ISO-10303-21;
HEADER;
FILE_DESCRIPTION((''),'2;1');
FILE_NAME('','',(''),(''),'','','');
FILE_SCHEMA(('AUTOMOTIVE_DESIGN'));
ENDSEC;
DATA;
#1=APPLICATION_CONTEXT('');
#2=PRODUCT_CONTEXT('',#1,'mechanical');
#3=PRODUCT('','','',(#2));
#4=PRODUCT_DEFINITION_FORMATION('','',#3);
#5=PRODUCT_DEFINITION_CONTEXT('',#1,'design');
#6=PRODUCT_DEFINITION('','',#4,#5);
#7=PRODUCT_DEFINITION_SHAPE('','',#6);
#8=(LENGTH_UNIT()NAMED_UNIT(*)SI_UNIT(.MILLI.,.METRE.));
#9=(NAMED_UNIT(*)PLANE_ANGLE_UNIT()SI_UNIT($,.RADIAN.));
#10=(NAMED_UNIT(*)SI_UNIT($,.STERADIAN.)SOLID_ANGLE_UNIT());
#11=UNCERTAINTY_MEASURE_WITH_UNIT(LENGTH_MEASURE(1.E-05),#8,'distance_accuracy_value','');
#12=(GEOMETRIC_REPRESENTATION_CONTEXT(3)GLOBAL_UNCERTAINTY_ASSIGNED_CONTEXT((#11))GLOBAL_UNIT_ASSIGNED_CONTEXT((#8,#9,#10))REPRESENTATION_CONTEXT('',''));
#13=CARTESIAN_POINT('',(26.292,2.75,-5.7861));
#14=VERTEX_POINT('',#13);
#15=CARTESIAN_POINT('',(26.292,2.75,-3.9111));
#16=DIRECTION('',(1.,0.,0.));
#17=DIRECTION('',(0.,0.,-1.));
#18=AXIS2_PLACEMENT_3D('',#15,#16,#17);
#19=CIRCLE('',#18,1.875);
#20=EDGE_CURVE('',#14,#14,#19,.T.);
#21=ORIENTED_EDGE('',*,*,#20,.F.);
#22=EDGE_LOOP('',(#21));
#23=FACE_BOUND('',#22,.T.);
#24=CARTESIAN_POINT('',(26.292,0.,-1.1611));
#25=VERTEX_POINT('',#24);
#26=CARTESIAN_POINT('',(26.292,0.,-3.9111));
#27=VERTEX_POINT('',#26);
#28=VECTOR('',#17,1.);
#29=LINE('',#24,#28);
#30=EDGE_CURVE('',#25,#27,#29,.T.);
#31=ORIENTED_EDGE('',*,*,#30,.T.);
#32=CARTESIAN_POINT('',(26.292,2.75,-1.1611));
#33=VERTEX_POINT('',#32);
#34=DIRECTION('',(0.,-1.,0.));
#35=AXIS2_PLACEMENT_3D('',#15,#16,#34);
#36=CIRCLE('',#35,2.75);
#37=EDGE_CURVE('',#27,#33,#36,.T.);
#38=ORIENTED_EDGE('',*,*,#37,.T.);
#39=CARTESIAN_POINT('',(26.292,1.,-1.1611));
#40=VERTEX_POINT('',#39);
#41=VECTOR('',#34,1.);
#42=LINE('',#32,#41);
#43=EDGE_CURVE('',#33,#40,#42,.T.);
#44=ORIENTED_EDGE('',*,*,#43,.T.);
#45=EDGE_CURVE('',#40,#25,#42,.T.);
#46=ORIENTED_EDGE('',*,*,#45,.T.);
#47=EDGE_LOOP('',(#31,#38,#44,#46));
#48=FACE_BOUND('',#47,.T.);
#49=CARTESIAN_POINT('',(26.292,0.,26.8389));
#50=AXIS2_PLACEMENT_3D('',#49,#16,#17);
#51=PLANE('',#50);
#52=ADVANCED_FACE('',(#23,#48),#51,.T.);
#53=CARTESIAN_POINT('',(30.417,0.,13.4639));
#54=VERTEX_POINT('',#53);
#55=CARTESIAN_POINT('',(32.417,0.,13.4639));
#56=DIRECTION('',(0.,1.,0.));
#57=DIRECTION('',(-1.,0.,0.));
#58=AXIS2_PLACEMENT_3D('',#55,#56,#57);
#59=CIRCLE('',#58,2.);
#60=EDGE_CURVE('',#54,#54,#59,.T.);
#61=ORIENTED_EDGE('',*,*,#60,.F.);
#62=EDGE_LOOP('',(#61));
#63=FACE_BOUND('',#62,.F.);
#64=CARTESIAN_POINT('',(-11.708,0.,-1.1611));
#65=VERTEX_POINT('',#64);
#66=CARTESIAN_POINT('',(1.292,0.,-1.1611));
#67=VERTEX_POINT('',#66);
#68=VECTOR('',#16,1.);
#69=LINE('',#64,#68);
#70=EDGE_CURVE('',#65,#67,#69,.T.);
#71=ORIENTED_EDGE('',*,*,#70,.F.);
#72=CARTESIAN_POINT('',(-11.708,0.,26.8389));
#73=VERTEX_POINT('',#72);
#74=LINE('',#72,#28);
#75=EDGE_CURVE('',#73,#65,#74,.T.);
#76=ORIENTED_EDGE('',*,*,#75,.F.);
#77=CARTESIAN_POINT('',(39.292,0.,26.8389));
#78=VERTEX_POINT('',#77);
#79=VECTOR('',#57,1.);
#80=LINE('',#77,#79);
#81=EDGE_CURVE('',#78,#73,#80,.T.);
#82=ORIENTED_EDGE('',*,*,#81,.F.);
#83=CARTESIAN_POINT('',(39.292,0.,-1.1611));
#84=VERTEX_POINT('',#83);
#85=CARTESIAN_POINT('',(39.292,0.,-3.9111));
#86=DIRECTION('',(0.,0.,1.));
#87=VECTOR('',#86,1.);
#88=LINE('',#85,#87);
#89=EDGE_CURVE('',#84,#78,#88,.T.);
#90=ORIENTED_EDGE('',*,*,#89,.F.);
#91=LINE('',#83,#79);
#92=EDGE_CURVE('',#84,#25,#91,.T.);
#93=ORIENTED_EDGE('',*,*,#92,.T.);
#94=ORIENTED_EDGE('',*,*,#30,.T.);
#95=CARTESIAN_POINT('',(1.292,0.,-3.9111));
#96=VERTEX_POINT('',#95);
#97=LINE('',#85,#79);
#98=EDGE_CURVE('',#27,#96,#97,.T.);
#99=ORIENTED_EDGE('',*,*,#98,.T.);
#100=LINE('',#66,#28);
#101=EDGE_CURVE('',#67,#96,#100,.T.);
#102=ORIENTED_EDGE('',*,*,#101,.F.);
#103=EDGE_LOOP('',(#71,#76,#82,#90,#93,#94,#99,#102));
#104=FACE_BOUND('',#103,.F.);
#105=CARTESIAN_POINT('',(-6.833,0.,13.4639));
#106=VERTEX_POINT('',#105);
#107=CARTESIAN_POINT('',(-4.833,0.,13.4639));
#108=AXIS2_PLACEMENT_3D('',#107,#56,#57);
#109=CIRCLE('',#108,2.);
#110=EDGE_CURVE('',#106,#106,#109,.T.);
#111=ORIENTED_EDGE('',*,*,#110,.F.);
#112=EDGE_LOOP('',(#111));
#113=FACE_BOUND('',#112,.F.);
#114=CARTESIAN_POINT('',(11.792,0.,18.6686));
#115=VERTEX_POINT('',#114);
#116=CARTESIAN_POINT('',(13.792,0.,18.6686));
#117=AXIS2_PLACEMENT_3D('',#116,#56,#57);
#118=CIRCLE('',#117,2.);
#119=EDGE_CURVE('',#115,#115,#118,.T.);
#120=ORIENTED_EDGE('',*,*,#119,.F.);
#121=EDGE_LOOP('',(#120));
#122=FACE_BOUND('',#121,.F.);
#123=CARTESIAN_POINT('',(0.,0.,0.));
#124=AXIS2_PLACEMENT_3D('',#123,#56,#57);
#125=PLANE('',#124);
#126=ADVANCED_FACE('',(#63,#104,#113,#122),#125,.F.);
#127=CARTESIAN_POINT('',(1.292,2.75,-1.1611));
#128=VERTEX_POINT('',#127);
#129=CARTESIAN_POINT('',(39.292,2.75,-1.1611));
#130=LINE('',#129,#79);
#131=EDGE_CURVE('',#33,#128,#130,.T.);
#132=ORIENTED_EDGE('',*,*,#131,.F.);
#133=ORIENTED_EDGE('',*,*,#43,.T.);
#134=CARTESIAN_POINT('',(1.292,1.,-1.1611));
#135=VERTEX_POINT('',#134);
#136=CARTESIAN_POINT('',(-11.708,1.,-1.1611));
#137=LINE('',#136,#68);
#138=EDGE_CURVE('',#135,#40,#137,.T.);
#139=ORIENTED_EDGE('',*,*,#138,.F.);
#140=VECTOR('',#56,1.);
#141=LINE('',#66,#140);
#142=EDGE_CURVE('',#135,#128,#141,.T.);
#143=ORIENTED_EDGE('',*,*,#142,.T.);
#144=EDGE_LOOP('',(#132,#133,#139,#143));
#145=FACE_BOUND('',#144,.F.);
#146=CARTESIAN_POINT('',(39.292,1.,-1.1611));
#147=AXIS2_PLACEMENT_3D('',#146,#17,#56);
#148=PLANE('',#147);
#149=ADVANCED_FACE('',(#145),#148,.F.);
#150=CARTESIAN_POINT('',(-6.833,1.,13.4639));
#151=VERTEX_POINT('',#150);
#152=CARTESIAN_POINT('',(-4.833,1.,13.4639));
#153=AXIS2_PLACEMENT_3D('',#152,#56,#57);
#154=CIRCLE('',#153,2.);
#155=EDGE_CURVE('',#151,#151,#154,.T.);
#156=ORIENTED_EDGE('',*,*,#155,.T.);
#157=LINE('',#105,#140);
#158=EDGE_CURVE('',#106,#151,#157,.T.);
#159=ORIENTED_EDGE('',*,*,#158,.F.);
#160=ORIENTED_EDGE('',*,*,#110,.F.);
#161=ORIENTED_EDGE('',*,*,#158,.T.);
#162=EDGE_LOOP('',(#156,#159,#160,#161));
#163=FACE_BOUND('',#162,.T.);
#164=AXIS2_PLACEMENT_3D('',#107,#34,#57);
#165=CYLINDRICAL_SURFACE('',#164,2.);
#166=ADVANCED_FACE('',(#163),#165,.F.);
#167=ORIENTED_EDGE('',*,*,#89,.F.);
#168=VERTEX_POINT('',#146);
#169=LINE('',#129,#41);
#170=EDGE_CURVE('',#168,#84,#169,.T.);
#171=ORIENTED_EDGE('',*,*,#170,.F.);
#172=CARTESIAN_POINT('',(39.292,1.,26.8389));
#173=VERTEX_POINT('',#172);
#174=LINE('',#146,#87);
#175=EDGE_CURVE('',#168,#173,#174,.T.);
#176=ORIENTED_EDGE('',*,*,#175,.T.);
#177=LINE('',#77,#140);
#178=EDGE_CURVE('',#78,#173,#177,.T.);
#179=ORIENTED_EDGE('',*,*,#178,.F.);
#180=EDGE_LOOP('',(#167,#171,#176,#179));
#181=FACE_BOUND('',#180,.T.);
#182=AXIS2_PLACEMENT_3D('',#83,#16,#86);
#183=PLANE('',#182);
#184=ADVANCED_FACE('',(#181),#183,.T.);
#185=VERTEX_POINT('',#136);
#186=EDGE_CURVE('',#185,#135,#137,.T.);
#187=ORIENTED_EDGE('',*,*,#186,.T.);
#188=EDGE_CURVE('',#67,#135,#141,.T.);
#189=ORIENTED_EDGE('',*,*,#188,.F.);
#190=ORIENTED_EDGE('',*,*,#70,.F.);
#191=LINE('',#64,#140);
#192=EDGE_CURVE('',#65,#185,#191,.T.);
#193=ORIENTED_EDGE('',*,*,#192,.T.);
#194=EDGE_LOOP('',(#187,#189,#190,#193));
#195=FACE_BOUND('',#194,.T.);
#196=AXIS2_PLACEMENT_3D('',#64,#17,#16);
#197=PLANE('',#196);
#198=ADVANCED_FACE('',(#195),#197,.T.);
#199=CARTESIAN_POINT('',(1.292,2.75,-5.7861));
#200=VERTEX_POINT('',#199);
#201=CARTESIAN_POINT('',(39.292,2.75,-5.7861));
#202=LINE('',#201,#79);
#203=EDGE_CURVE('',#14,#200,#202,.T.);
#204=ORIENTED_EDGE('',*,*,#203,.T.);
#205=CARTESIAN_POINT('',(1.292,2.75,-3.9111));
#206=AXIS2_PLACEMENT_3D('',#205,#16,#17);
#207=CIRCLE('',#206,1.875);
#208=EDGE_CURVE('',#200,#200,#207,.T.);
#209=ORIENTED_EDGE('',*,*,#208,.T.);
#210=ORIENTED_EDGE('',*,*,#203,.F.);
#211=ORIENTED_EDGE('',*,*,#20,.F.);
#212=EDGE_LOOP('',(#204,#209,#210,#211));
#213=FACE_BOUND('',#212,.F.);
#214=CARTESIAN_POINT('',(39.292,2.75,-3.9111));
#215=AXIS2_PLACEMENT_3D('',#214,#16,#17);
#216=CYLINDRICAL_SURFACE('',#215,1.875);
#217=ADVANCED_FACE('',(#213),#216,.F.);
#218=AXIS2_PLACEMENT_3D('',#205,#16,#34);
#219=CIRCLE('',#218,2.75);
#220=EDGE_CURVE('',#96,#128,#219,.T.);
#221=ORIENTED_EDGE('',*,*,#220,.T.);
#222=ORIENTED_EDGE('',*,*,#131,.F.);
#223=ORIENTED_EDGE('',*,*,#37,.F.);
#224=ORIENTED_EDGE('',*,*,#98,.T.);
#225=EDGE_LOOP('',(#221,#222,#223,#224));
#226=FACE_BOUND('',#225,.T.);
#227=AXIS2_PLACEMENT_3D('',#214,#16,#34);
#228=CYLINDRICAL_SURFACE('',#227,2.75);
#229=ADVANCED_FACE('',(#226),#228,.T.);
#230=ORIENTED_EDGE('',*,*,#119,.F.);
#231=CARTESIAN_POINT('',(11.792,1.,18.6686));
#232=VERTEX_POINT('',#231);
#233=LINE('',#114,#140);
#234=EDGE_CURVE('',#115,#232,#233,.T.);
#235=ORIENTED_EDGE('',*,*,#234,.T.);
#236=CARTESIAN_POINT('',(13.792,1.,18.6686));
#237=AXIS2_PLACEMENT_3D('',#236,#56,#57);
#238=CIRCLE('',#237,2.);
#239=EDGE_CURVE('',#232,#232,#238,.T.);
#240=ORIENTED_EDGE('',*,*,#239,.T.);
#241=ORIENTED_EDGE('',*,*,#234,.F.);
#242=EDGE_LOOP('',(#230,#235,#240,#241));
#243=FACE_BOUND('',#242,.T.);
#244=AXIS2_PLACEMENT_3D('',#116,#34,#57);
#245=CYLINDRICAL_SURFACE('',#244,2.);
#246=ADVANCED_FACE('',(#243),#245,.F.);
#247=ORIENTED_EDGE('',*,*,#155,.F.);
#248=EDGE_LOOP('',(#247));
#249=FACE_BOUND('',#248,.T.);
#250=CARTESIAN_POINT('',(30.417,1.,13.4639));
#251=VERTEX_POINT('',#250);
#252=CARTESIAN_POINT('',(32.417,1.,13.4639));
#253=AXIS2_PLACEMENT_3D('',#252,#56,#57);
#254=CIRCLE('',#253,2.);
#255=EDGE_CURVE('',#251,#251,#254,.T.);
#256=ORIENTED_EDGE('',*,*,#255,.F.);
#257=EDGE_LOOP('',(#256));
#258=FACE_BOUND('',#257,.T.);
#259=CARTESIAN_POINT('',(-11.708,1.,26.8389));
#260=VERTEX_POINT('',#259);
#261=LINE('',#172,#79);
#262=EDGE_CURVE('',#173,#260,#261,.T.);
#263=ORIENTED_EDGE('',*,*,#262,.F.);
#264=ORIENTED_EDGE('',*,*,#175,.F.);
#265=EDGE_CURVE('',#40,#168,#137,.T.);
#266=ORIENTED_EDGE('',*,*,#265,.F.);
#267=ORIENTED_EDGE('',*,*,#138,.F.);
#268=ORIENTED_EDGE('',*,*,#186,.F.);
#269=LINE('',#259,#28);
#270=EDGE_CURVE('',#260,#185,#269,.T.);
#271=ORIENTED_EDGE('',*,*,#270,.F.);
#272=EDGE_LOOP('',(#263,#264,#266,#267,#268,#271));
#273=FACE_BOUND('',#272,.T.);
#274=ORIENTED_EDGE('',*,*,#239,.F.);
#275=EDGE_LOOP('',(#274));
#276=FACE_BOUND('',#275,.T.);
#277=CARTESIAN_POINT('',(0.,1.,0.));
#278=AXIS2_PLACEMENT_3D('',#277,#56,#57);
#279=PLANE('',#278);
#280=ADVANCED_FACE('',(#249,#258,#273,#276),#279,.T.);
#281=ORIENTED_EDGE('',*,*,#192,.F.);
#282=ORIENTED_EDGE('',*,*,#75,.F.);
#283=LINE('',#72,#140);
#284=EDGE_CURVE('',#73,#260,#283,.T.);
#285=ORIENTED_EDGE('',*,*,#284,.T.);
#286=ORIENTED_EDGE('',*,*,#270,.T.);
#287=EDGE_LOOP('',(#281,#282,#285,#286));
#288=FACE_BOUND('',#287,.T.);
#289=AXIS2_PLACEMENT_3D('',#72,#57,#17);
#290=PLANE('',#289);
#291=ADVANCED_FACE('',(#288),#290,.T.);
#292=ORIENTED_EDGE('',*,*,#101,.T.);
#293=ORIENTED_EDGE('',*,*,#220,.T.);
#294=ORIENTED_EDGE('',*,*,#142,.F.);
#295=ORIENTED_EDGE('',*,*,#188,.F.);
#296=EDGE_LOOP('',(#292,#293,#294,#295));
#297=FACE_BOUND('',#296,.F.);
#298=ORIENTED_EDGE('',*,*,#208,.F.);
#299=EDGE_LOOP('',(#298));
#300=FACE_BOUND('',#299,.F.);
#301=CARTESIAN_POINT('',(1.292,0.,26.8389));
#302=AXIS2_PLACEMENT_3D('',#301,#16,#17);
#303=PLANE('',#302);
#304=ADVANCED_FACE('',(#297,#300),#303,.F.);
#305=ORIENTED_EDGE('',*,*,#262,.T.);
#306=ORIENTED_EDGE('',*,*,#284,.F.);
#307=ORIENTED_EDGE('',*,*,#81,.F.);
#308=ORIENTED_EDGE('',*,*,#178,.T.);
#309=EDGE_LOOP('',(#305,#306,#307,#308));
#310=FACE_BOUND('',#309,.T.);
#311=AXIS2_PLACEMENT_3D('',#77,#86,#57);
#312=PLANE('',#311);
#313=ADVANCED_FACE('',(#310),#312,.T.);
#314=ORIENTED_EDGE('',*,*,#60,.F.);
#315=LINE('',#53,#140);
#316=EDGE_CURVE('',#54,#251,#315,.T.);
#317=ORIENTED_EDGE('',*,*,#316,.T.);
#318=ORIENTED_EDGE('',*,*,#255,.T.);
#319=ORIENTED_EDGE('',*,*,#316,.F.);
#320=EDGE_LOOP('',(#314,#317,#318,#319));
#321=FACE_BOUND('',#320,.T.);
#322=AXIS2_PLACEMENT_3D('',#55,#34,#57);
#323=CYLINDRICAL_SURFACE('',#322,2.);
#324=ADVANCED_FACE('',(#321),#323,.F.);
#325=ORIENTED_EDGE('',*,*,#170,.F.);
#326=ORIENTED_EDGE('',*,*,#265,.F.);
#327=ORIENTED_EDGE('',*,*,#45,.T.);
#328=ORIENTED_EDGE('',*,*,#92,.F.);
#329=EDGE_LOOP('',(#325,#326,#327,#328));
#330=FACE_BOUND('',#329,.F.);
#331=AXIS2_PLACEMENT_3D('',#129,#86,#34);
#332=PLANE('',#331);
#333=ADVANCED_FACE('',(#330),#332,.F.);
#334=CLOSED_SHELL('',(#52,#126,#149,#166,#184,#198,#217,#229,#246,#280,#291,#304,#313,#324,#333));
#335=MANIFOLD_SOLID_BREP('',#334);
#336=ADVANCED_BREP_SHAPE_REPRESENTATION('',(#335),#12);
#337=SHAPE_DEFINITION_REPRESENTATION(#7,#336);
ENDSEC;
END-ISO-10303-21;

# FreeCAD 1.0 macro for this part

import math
import FreeCAD as App
import Part
import Sketcher


def add_polygon(sketch, points):
    """Adds a closed chain of lines whose ends are joined by coincident constraints."""
    first, n = sketch.GeometryCount, len(points)
    for a, b in zip(points, points[1:] + points[:1]):
        sketch.addGeometry(Part.LineSegment(App.Vector(*a, 0), App.Vector(*b, 0)), False)
    for i in range(n):
        sketch.addConstraint(Sketcher.Constraint("Coincident", first + i, 2, first + (i + 1) % n, 1))

doc = App.newDocument("Part")
params = doc.addObject("Spreadsheet::Sheet", "Params")
for row, (alias, value) in enumerate([
    ("sketch1_diameter", "4 mm"),
    ("sketch1_width", "51 mm"),
    ("sketch1_height", "28 mm"),
    ("pad1_length", "1 mm"),
    ("sketch2_diameter", "3.75 mm"),
    ("sketch2_radius", "2.75 mm"),
    ("pad2_length", "38 mm"),
    ("sketch3_diameter", "3.75 mm"),
    ("sketch3_radius", "2.75 mm"),
    ("pocket1_length", "13 mm"),
], start=1):
    params.set(f"A{row}", alias)
    params.set(f"B{row}", "=" + value)
    params.setAlias(f"B{row}", alias)

body = doc.addObject("PartDesign::Body", "Body")

# Sketch on XZ plane
sketch1 = body.newObject("Sketcher::SketchObject", "Sketch")
sketch1.AttachmentSupport = (doc.getObject("XZ_Plane"), [""])
sketch1.MapMode = "FlatFace"
add_polygon(sketch1, [(-11.7, -1.2), (-11.7, 26.8), (39.3, 26.8), (39.3, -1.2)])  # lines 0-3
sketch1.addGeometry(Part.Circle(App.Vector(32.4, 13.5, 0), App.Vector(0, 0, 1), 2), False)  # 4
sketch1.addGeometry(Part.Circle(App.Vector(13.8, 18.7, 0), App.Vector(0, 0, 1), 2), False)  # 5
sketch1.addGeometry(Part.Circle(App.Vector(-4.8, 13.5, 0), App.Vector(0, 0, 1), 2), False)  # 6
sketch1.addConstraint([
    Sketcher.Constraint("Vertical", 0),
    Sketcher.Constraint("Horizontal", 1),
    Sketcher.Constraint("Vertical", 2),
    Sketcher.Constraint("Horizontal", 3),
    Sketcher.Constraint("Equal", 4, 5),
    Sketcher.Constraint("Equal", 5, 6),
    Sketcher.Constraint("Horizontal", 4, 3, 6, 3),
    Sketcher.Constraint("Diameter", 4, 4.0),
    Sketcher.Constraint("DistanceX", 1, 1, 1, 2, 51.0),
    Sketcher.Constraint("DistanceY", 0, 1, 0, 2, 28.0),
    Sketcher.Constraint("DistanceX", 0, 2, 5, 3, 25.5),
    Sketcher.Constraint("DistanceX", 0, 2, 6, 3, 6.875),
    Sketcher.Constraint("DistanceY", 6, 3, 0, 2, 13.375),
    Sketcher.Constraint("DistanceX", 4, 3, 1, 2, 6.875),
    Sketcher.Constraint("DistanceX", -1, 1, 4, 3, 32.417),
    Sketcher.Constraint("DistanceY", -1, 1, 4, 3, 13.464),
    Sketcher.Constraint("DistanceY", -1, 1, 5, 3, 18.6686),
])
sketch1.setExpression("Constraints[11]", "Params.sketch1_diameter")
sketch1.setExpression("Constraints[12]", "Params.sketch1_width")
sketch1.setExpression("Constraints[13]", "Params.sketch1_height")
pad1 = body.newObject("PartDesign::Pad", "Pad")
pad1.Profile = sketch1
pad1.setExpression("Length", "Params.pad1_length")
pad1.Reversed = True

# Sketch on YZ plane
sketch2 = body.newObject("Sketcher::SketchObject", "Sketch001")
sketch2.AttachmentSupport = (doc.getObject("YZ_Plane"), [""])
sketch2.MapMode = "FlatFace"
sketch2.AttachmentOffset = App.Placement(App.Vector(0, 0, 39.292), App.Rotation())
sketch2.addGeometry([
    Part.LineSegment(App.Vector(0, -1.2, 0), App.Vector(0, -3.9, 0)),
    Part.ArcOfCircle(Part.Circle(App.Vector(2.8, -3.9, 0), App.Vector(0, 0, 1), 2.8), math.radians(180), math.radians(450)),
    Part.LineSegment(App.Vector(2.8, -1.2, 0), App.Vector(0, -1.2, 0)),
    Part.Circle(App.Vector(2.8, -3.9, 0), App.Vector(0, 0, 1), 1.9),
], False)
sketch2.addConstraint([
    Sketcher.Constraint("Tangent", 0, 2, 1, 1),
    Sketcher.Constraint("Tangent", 1, 2, 2, 1),
    Sketcher.Constraint("Coincident", 2, 2, 0, 1),
    Sketcher.Constraint("Vertical", 0),
    Sketcher.Constraint("Horizontal", 2),
    Sketcher.Constraint("Coincident", 3, 3, 1, 3),
    Sketcher.Constraint("PointOnObject", 0, 2, -2),
    Sketcher.Constraint("Diameter", 3, 3.75),
    Sketcher.Constraint("Radius", 1, 2.75),
    Sketcher.Constraint("DistanceY", 1, 3, -1, 1, 3.911),
])
sketch2.setExpression("Constraints[7]", "Params.sketch2_diameter")
sketch2.setExpression("Constraints[8]", "Params.sketch2_radius")
pad2 = body.newObject("PartDesign::Pad", "Pad001")
pad2.Profile = sketch2
pad2.setExpression("Length", "Params.pad2_length")
pad2.Reversed = True

# Sketch on YZ plane
sketch3 = body.newObject("Sketcher::SketchObject", "Sketch002")
sketch3.AttachmentSupport = (doc.getObject("YZ_Plane"), [""])
sketch3.MapMode = "FlatFace"
sketch3.AttachmentOffset = App.Placement(App.Vector(0, 0, 39.292), App.Rotation())
sketch3.addGeometry([
    Part.LineSegment(App.Vector(0, -1.2, 0), App.Vector(0, -3.9, 0)),
    Part.ArcOfCircle(Part.Circle(App.Vector(2.8, -3.9, 0), App.Vector(0, 0, 1), 2.8), math.radians(180), math.radians(450)),
    Part.LineSegment(App.Vector(2.8, -1.2, 0), App.Vector(0, -1.2, 0)),
    Part.Circle(App.Vector(2.8, -3.9, 0), App.Vector(0, 0, 1), 1.9),
], False)
sketch3.addConstraint([
    Sketcher.Constraint("Tangent", 0, 2, 1, 1),
    Sketcher.Constraint("Tangent", 1, 2, 2, 1),
    Sketcher.Constraint("Coincident", 2, 2, 0, 1),
    Sketcher.Constraint("Vertical", 0),
    Sketcher.Constraint("Horizontal", 2),
    Sketcher.Constraint("Coincident", 3, 3, 1, 3),
    Sketcher.Constraint("PointOnObject", 0, 2, -2),
    Sketcher.Constraint("Diameter", 3, 3.75),
    Sketcher.Constraint("Radius", 1, 2.75),
    Sketcher.Constraint("DistanceY", 1, 3, -1, 1, 3.911),
])
sketch3.setExpression("Constraints[7]", "Params.sketch3_diameter")
sketch3.setExpression("Constraints[8]", "Params.sketch3_radius")
pocket1 = body.newObject("PartDesign::Pocket", "Pocket")
pocket1.Profile = sketch3
pocket1.setExpression("Length", "Params.pocket1_length")

doc.recompute()
